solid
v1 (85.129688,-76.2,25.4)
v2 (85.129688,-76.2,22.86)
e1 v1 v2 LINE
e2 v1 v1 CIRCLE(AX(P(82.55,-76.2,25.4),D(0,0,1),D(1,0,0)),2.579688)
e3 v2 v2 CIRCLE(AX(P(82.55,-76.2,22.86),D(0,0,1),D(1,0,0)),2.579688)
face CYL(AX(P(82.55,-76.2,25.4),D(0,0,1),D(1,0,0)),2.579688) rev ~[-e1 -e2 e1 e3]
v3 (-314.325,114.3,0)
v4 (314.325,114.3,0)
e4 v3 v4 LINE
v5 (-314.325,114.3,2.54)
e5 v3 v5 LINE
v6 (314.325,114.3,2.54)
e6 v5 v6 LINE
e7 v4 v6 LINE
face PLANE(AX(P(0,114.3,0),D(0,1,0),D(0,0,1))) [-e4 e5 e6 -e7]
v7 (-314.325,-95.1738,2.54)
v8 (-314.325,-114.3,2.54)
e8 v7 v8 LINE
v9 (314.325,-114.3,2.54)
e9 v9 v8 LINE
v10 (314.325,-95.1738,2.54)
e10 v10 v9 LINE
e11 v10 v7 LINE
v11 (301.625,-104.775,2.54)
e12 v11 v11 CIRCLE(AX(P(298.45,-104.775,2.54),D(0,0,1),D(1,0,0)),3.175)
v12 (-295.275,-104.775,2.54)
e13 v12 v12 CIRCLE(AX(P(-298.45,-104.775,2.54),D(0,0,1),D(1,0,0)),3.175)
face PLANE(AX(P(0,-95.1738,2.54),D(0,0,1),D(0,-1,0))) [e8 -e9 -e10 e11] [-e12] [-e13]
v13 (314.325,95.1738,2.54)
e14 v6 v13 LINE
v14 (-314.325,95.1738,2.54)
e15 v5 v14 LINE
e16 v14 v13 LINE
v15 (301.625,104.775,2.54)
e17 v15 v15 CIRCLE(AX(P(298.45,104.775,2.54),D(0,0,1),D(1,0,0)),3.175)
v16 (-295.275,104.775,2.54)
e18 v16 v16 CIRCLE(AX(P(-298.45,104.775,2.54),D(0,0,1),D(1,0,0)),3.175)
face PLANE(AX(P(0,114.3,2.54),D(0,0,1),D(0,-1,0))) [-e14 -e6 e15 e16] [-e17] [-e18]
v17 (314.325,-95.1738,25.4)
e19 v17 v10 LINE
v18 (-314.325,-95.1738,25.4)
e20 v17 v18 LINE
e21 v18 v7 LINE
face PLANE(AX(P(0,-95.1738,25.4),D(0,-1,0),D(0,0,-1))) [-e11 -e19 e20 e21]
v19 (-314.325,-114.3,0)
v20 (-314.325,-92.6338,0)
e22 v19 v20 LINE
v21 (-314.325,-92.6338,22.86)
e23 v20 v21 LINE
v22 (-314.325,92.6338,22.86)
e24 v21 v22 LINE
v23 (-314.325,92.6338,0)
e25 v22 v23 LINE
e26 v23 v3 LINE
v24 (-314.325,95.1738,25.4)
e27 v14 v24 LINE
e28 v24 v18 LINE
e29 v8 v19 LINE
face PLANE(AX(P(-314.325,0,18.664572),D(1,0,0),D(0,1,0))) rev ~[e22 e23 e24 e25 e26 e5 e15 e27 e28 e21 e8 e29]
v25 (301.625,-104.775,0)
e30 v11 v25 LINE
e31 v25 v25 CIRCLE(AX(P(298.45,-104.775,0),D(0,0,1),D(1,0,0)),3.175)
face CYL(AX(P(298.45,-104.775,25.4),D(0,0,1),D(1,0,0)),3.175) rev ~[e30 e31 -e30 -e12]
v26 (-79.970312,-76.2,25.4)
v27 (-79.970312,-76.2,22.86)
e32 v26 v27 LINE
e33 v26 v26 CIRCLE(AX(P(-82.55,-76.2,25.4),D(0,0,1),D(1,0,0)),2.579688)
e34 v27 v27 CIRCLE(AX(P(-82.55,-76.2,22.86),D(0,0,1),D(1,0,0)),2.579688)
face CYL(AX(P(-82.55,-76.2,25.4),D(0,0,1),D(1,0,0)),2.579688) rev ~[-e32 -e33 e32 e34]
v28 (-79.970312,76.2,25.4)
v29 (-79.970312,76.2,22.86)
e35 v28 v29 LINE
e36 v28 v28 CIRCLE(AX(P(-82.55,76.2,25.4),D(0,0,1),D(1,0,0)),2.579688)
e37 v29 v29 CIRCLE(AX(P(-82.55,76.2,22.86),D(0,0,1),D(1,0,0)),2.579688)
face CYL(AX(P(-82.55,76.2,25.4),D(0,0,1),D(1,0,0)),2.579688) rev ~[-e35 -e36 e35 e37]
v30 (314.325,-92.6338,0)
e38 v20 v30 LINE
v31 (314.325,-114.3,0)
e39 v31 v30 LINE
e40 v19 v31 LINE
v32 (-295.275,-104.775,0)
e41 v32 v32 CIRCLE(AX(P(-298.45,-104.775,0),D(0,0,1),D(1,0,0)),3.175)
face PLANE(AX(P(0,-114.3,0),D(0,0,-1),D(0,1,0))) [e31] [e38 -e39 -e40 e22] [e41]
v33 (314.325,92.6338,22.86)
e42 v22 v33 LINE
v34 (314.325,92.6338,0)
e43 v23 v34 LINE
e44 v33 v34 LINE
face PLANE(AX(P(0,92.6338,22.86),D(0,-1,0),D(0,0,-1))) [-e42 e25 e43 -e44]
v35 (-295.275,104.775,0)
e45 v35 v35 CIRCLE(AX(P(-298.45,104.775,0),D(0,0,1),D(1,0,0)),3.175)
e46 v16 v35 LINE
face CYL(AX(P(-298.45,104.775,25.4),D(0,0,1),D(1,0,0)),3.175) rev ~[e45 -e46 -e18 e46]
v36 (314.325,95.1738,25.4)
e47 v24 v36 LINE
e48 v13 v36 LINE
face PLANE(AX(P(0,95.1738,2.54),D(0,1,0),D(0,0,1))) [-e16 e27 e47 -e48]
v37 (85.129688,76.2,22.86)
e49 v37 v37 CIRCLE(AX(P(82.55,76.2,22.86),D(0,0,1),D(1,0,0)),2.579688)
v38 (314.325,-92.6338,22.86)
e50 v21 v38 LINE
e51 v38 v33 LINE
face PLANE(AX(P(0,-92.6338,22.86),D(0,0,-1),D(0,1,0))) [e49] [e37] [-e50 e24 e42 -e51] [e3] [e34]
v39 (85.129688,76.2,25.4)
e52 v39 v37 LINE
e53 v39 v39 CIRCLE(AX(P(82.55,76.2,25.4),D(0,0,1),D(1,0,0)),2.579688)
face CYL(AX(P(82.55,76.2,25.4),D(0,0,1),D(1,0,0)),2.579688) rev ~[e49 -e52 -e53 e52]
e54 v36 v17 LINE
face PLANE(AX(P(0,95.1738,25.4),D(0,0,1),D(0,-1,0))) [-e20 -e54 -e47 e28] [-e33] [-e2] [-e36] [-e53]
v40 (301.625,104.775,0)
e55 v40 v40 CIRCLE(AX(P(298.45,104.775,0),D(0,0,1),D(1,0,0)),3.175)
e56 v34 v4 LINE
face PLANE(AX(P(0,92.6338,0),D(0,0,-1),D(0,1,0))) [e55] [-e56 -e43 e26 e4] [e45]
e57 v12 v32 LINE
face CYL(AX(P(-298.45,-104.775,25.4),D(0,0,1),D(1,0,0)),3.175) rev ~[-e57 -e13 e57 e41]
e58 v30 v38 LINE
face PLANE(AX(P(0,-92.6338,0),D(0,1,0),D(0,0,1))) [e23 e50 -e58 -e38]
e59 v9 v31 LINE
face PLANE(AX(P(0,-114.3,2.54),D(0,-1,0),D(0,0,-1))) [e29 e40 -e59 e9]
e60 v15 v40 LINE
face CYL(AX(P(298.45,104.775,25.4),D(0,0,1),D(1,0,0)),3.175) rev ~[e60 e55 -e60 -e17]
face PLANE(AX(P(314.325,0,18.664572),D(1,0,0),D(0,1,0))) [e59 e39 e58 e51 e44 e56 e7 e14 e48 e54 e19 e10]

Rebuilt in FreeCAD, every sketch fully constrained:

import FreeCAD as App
import Part
import Sketcher
from FreeCAD import Vector
Q = App.Units.Quantity


def add_polygon(sketch, points):
    """Adds a closed chain of lines whose ends are joined by coincident constraints."""
    first, n = sketch.GeometryCount, len(points)
    for a, b in zip(points, points[1:] + points[:1]):
        sketch.addGeometry(Part.LineSegment(App.Vector(*a, 0), App.Vector(*b, 0)), False)
    for i in range(n):
        sketch.addConstraint(Sketcher.Constraint("Coincident", first + i, 2, first + (i + 1) % n, 1))

doc = App.newDocument("Part")
body = doc.addObject("PartDesign::Body", "Body")

# Sketch on YZ plane
sketch1 = doc.addObject("Sketcher::SketchObject", "Sketch")
body.addObject(sketch1)
sketch1.AttachmentSupport = (doc.YZ_Plane, [""])
sketch1.MapMode = "FlatFace"
add_polygon(sketch1, [(-114.3, 2.5), (-114.3, 0), (-92.6, 0), (-92.6, 22.9), (92.6, 22.9), (92.6, 0), (114.3, 0), (114.3, 2.5), (95.2, 2.5), (95.2, 25.4), (-95.2, 25.4), (-95.2, 2.5)])  # lines 0-11
sketch1.addConstraint([
    Sketcher.Constraint("Vertical", 0),
    Sketcher.Constraint("Horizontal", 1),
    Sketcher.Constraint("Vertical", 2),
    Sketcher.Constraint("Horizontal", 3),
    Sketcher.Constraint("Vertical", 4),
    Sketcher.Constraint("Horizontal", 5),
    Sketcher.Constraint("Vertical", 6),
    Sketcher.Constraint("Horizontal", 7),
    Sketcher.Constraint("Vertical", 8),
    Sketcher.Constraint("Horizontal", 9),
    Sketcher.Constraint("Vertical", 10),
    Sketcher.Constraint("Horizontal", 11),
    Sketcher.Constraint("Symmetric", 1, 2, 4, 2, -1, 1),
    Sketcher.Constraint("Symmetric", 0, 2, 5, 2, -2),
    Sketcher.Constraint("Symmetric", 7, 2, 10, 2, -2),
    Sketcher.Constraint("Equal", 4, 8),
    Sketcher.Constraint("DistanceY", 0, 2, 0, 1, Q("0.1 in")),
    Sketcher.Constraint("DistanceY", 2, 1, 2, 2, Q("0.9 in")),
    Sketcher.Constraint("DistanceX", 0, 2, 5, 2, Q("9 in")),
    Sketcher.Constraint("DistanceX", 4, 2, 7, 2, Q("0.1 in")),
    Sketcher.Constraint("DistanceX", 1, 1, 1, 2, Q("0.853 in")),
])
pad1 = doc.addObject("PartDesign::Pad", "Pad")
body.addObject(pad1)
pad1.Profile = sketch1
pad1.Length = Q("24.75 in")
pad1.Midplane = True

# Sketch on XY plane
sketch2 = doc.addObject("Sketcher::SketchObject", "Sketch001")
body.addObject(sketch2)
sketch2.AttachmentSupport = (doc.XY_Plane, [""])
sketch2.MapMode = "FlatFace"
sketch2.AttachmentOffset = App.Placement(Vector(0, 0, 1 * 25.4), App.Rotation())
sketch2.addGeometry([
    Part.Circle(Vector(-82.5, 76.2, 0), Vector(0, 0, 1), 2.6),  # 0
    Part.Circle(Vector(-82.5, -76.2, 0), Vector(0, 0, 1), 2.6),  # 1
    Part.Circle(Vector(82.5, -76.2, 0), Vector(0, 0, 1), 2.6),  # 2
    Part.Circle(Vector(82.5, 76.2, 0), Vector(0, 0, 1), 2.6),  # 3
    Part.Circle(Vector(298.4, 104.8, 0), Vector(0, 0, 1), 3.2),  # 4
    Part.Circle(Vector(298.4, -104.8, 0), Vector(0, 0, 1), 3.2),  # 5
    Part.Circle(Vector(-298.4, -104.8, 0), Vector(0, 0, 1), 3.2),  # 6
    Part.Circle(Vector(-298.4, 104.8, 0), Vector(0, 0, 1), 3.2),  # 7
], False)
sketch2.addConstraint([
    Sketcher.Constraint("Equal", 0, 1),
    Sketcher.Constraint("Equal", 1, 2),
    Sketcher.Constraint("Equal", 2, 3),
    Sketcher.Constraint("Equal", 4, 5),
    Sketcher.Constraint("Equal", 5, 6),
    Sketcher.Constraint("Equal", 6, 7),
    Sketcher.Constraint("Symmetric", 0, 3, 2, 3, -1, 1),
    Sketcher.Constraint("Symmetric", 1, 3, 3, 3, -1, 1),
    Sketcher.Constraint("Symmetric", 4, 3, 6, 3, -1, 1),
    Sketcher.Constraint("Symmetric", 5, 3, 7, 3, -1, 1),
    Sketcher.Constraint("Symmetric", 1, 3, 2, 3, -2),
    Sketcher.Constraint("Symmetric", 5, 3, 6, 3, -2),
    Sketcher.Constraint("Diameter", 4, Q("0.25 in")),
    Sketcher.Constraint("Diameter", 0, Q("0.203125 in")),
    Sketcher.Constraint("DistanceY", -1, 1, 0, 3, Q("3 in")),
    Sketcher.Constraint("DistanceX", 0, 3, 4, 3, Q("15 in")),
    Sketcher.Constraint("DistanceX", 1, 3, 2, 3, Q("6.5 in")),
    Sketcher.Constraint("DistanceY", 5, 3, 4, 3, Q("8.25 in")),
])
pocket1 = doc.addObject("PartDesign::Pocket", "Pocket")
body.addObject(pocket1)
pocket1.Profile = sketch2
pocket1.Type = "ThroughAll"

doc.recompute()
